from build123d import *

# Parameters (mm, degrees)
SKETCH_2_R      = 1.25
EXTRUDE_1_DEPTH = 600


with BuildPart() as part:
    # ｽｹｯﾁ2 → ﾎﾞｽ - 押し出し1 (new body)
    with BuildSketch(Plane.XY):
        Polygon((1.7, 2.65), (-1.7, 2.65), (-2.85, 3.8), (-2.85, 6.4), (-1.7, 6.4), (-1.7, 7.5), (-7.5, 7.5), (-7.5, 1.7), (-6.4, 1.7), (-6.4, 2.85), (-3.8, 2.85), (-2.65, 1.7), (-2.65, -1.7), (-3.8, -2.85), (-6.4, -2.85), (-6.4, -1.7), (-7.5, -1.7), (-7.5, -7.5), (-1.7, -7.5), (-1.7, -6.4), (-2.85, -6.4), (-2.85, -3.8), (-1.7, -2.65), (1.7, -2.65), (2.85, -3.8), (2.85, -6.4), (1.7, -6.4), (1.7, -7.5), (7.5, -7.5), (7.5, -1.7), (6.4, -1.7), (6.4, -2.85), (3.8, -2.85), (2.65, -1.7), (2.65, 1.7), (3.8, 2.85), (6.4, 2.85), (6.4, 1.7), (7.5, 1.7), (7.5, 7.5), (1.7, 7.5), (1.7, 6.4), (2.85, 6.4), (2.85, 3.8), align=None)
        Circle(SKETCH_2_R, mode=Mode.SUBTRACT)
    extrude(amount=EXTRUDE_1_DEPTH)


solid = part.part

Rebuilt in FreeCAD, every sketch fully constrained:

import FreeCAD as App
import Part
import Sketcher
Q = App.Units.Quantity


def add_polygon(sketch, points):
    """Adds a closed chain of lines whose ends are joined by coincident constraints."""
    first, n = sketch.GeometryCount, len(points)
    for a, b in zip(points, points[1:] + points[:1]):
        sketch.addGeometry(Part.LineSegment(App.Vector(*a, 0), App.Vector(*b, 0)), False)
    for i in range(n):
        sketch.addConstraint(Sketcher.Constraint("Coincident", first + i, 2, first + (i + 1) % n, 1))

doc = App.newDocument("Part")
body = doc.addObject("PartDesign::Body", "Body")

sketch1 = body.newObject("Sketcher::SketchObject", "Sketch")
sketch1.AttachmentSupport = (doc.getObject("XY_Plane"), [""])
sketch1.MapMode = "FlatFace"
add_polygon(sketch1, [(1.7, 2.6), (-1.7, 2.6), (-2.9, 3.8), (-2.9, 6.4), (-1.7, 6.4), (-1.7, 7.5), (-7.5, 7.5), (-7.5, 1.7), (-6.4, 1.7), (-6.4, 2.9), (-3.8, 2.9), (-2.6, 1.7), (-2.6, -1.7), (-3.8, -2.9), (-6.4, -2.9), (-6.4, -1.7), (-7.5, -1.7), (-7.5, -7.5), (-1.7, -7.5), (-1.7, -6.4), (-2.9, -6.4), (-2.9, -3.8), (-1.7, -2.6), (1.7, -2.6), (2.9, -3.8), (2.9, -6.4), (1.7, -6.4), (1.7, -7.5), (7.5, -7.5), (7.5, -1.7), (6.4, -1.7), (6.4, -2.9), (3.8, -2.9), (2.6, -1.7), (2.6, 1.7), (3.8, 2.9), (6.4, 2.9), (6.4, 1.7), (7.5, 1.7), (7.5, 7.5), (1.7, 7.5), (1.7, 6.4), (2.9, 6.4), (2.9, 3.8)])
sketch1.addGeometry(Part.Circle(App.Vector(0, 0, 0), App.Vector(0, 0, 1), 1.2), False)
sketch1.addConstraint([
    Sketcher.Constraint("Horizontal", 0),
    Sketcher.Constraint("Vertical", 2),
    Sketcher.Constraint("Horizontal", 3),
    Sketcher.Constraint("Vertical", 4),
    Sketcher.Constraint("Horizontal", 5),
    Sketcher.Constraint("Vertical", 6),
    Sketcher.Constraint("Horizontal", 7),
    Sketcher.Constraint("Vertical", 8),
    Sketcher.Constraint("Horizontal", 9),
    Sketcher.Constraint("Vertical", 11),
    Sketcher.Constraint("Horizontal", 13),
    Sketcher.Constraint("Vertical", 14),
    Sketcher.Constraint("Horizontal", 15),
    Sketcher.Constraint("Vertical", 16),
    Sketcher.Constraint("Horizontal", 17),
    Sketcher.Constraint("Vertical", 18),
    Sketcher.Constraint("Horizontal", 19),
    Sketcher.Constraint("Vertical", 20),
    Sketcher.Constraint("Horizontal", 22),
    Sketcher.Constraint("Vertical", 24),
    Sketcher.Constraint("Horizontal", 25),
    Sketcher.Constraint("Vertical", 26),
    Sketcher.Constraint("Horizontal", 27),
    Sketcher.Constraint("Vertical", 28),
    Sketcher.Constraint("Horizontal", 29),
    Sketcher.Constraint("Vertical", 30),
    Sketcher.Constraint("Horizontal", 31),
    Sketcher.Constraint("Vertical", 33),
    Sketcher.Constraint("Horizontal", 35),
    Sketcher.Constraint("Vertical", 36),
    Sketcher.Constraint("Horizontal", 37),
    Sketcher.Constraint("Vertical", 38),
    Sketcher.Constraint("Horizontal", 39),
    Sketcher.Constraint("Vertical", 40),
    Sketcher.Constraint("Horizontal", 41),
    Sketcher.Constraint("Vertical", 42),
    Sketcher.Constraint("Coincident", 44, 3, -1, 1),
    Sketcher.Constraint("Symmetric", 0, 2, 22, 2, -1, 1),
    Sketcher.Constraint("Symmetric", 1, 2, 23, 2, -1, 1),
    Sketcher.Constraint("Symmetric", 3, 2, 25, 2, -1, 1),
    Sketcher.Constraint("Symmetric", 5, 2, 27, 2, -1, 1),
    Sketcher.Constraint("Symmetric", 7, 2, 29, 2, -1, 1),
    Sketcher.Constraint("Symmetric", 9, 2, 31, 2, -1, 1),
    Sketcher.Constraint("Symmetric", 10, 2, 32, 2, -1, 1),
    Sketcher.Constraint("Symmetric", 12, 2, 34, 2, -1, 1),
    Sketcher.Constraint("Symmetric", 14, 2, 36, 2, -1, 1),
    Sketcher.Constraint("Symmetric", 16, 2, 38, 2, -1, 1),
    Sketcher.Constraint("Symmetric", 18, 2, 40, 2, -1, 1),
    Sketcher.Constraint("Symmetric", 20, 2, 42, 2, -1, 1),
    Sketcher.Constraint("Symmetric", 20, 2, 23, 2, -2),
    Sketcher.Constraint("Symmetric", 18, 2, 25, 2, -2),
    Sketcher.Constraint("Symmetric", 16, 2, 27, 2, -2),
    Sketcher.Constraint("Symmetric", 14, 2, 29, 2, -2),
    Sketcher.Constraint("Symmetric", 12, 2, 31, 2, -2),
    Sketcher.Constraint("Parallel", 1, 10),
    Sketcher.Constraint("Perpendicular", 10, 12),
    Sketcher.Constraint("Parallel", 12, 21),
    Sketcher.Constraint("Perpendicular", 32, 34),
    Sketcher.Constraint("Parallel", 34, 43),
    Sketcher.Constraint("Horizontal", 7, 2, 10, 2),
    Sketcher.Constraint("Horizontal", 11, 2, 14, 2),
    Sketcher.Constraint("Vertical", 0, 2, 3, 2),
    Sketcher.Constraint("Equal", 35, 2),
    Sketcher.Constraint("Equal", 37, 4),
    Sketcher.Constraint("Equal", 39, 6),
    Sketcher.Constraint("Equal", 41, 8),
    Sketcher.Constraint("Equal", 22, 11),
    Sketcher.Constraint("Diameter", 44, Q("2.5 mm")),
    Sketcher.Constraint("DistanceX", 0, 2, 0, 1, Q("3.4 mm")),
    Sketcher.Constraint("DistanceX", 5, 2, 5, 1, Q("5.8 mm")),
    Sketcher.Constraint("DistanceX", 7, 1, 7, 2, Q("1.1 mm")),
    Sketcher.Constraint("DistanceX", 9, 1, 9, 2, Q("2.6 mm")),
    Sketcher.Constraint("DistanceX", 3, 1, 3, 2, Q("1.15 mm")),
])
pad1 = body.newObject("PartDesign::Pad", "Pad")
pad1.Profile = sketch1
pad1.Length = 600

doc.recompute()
